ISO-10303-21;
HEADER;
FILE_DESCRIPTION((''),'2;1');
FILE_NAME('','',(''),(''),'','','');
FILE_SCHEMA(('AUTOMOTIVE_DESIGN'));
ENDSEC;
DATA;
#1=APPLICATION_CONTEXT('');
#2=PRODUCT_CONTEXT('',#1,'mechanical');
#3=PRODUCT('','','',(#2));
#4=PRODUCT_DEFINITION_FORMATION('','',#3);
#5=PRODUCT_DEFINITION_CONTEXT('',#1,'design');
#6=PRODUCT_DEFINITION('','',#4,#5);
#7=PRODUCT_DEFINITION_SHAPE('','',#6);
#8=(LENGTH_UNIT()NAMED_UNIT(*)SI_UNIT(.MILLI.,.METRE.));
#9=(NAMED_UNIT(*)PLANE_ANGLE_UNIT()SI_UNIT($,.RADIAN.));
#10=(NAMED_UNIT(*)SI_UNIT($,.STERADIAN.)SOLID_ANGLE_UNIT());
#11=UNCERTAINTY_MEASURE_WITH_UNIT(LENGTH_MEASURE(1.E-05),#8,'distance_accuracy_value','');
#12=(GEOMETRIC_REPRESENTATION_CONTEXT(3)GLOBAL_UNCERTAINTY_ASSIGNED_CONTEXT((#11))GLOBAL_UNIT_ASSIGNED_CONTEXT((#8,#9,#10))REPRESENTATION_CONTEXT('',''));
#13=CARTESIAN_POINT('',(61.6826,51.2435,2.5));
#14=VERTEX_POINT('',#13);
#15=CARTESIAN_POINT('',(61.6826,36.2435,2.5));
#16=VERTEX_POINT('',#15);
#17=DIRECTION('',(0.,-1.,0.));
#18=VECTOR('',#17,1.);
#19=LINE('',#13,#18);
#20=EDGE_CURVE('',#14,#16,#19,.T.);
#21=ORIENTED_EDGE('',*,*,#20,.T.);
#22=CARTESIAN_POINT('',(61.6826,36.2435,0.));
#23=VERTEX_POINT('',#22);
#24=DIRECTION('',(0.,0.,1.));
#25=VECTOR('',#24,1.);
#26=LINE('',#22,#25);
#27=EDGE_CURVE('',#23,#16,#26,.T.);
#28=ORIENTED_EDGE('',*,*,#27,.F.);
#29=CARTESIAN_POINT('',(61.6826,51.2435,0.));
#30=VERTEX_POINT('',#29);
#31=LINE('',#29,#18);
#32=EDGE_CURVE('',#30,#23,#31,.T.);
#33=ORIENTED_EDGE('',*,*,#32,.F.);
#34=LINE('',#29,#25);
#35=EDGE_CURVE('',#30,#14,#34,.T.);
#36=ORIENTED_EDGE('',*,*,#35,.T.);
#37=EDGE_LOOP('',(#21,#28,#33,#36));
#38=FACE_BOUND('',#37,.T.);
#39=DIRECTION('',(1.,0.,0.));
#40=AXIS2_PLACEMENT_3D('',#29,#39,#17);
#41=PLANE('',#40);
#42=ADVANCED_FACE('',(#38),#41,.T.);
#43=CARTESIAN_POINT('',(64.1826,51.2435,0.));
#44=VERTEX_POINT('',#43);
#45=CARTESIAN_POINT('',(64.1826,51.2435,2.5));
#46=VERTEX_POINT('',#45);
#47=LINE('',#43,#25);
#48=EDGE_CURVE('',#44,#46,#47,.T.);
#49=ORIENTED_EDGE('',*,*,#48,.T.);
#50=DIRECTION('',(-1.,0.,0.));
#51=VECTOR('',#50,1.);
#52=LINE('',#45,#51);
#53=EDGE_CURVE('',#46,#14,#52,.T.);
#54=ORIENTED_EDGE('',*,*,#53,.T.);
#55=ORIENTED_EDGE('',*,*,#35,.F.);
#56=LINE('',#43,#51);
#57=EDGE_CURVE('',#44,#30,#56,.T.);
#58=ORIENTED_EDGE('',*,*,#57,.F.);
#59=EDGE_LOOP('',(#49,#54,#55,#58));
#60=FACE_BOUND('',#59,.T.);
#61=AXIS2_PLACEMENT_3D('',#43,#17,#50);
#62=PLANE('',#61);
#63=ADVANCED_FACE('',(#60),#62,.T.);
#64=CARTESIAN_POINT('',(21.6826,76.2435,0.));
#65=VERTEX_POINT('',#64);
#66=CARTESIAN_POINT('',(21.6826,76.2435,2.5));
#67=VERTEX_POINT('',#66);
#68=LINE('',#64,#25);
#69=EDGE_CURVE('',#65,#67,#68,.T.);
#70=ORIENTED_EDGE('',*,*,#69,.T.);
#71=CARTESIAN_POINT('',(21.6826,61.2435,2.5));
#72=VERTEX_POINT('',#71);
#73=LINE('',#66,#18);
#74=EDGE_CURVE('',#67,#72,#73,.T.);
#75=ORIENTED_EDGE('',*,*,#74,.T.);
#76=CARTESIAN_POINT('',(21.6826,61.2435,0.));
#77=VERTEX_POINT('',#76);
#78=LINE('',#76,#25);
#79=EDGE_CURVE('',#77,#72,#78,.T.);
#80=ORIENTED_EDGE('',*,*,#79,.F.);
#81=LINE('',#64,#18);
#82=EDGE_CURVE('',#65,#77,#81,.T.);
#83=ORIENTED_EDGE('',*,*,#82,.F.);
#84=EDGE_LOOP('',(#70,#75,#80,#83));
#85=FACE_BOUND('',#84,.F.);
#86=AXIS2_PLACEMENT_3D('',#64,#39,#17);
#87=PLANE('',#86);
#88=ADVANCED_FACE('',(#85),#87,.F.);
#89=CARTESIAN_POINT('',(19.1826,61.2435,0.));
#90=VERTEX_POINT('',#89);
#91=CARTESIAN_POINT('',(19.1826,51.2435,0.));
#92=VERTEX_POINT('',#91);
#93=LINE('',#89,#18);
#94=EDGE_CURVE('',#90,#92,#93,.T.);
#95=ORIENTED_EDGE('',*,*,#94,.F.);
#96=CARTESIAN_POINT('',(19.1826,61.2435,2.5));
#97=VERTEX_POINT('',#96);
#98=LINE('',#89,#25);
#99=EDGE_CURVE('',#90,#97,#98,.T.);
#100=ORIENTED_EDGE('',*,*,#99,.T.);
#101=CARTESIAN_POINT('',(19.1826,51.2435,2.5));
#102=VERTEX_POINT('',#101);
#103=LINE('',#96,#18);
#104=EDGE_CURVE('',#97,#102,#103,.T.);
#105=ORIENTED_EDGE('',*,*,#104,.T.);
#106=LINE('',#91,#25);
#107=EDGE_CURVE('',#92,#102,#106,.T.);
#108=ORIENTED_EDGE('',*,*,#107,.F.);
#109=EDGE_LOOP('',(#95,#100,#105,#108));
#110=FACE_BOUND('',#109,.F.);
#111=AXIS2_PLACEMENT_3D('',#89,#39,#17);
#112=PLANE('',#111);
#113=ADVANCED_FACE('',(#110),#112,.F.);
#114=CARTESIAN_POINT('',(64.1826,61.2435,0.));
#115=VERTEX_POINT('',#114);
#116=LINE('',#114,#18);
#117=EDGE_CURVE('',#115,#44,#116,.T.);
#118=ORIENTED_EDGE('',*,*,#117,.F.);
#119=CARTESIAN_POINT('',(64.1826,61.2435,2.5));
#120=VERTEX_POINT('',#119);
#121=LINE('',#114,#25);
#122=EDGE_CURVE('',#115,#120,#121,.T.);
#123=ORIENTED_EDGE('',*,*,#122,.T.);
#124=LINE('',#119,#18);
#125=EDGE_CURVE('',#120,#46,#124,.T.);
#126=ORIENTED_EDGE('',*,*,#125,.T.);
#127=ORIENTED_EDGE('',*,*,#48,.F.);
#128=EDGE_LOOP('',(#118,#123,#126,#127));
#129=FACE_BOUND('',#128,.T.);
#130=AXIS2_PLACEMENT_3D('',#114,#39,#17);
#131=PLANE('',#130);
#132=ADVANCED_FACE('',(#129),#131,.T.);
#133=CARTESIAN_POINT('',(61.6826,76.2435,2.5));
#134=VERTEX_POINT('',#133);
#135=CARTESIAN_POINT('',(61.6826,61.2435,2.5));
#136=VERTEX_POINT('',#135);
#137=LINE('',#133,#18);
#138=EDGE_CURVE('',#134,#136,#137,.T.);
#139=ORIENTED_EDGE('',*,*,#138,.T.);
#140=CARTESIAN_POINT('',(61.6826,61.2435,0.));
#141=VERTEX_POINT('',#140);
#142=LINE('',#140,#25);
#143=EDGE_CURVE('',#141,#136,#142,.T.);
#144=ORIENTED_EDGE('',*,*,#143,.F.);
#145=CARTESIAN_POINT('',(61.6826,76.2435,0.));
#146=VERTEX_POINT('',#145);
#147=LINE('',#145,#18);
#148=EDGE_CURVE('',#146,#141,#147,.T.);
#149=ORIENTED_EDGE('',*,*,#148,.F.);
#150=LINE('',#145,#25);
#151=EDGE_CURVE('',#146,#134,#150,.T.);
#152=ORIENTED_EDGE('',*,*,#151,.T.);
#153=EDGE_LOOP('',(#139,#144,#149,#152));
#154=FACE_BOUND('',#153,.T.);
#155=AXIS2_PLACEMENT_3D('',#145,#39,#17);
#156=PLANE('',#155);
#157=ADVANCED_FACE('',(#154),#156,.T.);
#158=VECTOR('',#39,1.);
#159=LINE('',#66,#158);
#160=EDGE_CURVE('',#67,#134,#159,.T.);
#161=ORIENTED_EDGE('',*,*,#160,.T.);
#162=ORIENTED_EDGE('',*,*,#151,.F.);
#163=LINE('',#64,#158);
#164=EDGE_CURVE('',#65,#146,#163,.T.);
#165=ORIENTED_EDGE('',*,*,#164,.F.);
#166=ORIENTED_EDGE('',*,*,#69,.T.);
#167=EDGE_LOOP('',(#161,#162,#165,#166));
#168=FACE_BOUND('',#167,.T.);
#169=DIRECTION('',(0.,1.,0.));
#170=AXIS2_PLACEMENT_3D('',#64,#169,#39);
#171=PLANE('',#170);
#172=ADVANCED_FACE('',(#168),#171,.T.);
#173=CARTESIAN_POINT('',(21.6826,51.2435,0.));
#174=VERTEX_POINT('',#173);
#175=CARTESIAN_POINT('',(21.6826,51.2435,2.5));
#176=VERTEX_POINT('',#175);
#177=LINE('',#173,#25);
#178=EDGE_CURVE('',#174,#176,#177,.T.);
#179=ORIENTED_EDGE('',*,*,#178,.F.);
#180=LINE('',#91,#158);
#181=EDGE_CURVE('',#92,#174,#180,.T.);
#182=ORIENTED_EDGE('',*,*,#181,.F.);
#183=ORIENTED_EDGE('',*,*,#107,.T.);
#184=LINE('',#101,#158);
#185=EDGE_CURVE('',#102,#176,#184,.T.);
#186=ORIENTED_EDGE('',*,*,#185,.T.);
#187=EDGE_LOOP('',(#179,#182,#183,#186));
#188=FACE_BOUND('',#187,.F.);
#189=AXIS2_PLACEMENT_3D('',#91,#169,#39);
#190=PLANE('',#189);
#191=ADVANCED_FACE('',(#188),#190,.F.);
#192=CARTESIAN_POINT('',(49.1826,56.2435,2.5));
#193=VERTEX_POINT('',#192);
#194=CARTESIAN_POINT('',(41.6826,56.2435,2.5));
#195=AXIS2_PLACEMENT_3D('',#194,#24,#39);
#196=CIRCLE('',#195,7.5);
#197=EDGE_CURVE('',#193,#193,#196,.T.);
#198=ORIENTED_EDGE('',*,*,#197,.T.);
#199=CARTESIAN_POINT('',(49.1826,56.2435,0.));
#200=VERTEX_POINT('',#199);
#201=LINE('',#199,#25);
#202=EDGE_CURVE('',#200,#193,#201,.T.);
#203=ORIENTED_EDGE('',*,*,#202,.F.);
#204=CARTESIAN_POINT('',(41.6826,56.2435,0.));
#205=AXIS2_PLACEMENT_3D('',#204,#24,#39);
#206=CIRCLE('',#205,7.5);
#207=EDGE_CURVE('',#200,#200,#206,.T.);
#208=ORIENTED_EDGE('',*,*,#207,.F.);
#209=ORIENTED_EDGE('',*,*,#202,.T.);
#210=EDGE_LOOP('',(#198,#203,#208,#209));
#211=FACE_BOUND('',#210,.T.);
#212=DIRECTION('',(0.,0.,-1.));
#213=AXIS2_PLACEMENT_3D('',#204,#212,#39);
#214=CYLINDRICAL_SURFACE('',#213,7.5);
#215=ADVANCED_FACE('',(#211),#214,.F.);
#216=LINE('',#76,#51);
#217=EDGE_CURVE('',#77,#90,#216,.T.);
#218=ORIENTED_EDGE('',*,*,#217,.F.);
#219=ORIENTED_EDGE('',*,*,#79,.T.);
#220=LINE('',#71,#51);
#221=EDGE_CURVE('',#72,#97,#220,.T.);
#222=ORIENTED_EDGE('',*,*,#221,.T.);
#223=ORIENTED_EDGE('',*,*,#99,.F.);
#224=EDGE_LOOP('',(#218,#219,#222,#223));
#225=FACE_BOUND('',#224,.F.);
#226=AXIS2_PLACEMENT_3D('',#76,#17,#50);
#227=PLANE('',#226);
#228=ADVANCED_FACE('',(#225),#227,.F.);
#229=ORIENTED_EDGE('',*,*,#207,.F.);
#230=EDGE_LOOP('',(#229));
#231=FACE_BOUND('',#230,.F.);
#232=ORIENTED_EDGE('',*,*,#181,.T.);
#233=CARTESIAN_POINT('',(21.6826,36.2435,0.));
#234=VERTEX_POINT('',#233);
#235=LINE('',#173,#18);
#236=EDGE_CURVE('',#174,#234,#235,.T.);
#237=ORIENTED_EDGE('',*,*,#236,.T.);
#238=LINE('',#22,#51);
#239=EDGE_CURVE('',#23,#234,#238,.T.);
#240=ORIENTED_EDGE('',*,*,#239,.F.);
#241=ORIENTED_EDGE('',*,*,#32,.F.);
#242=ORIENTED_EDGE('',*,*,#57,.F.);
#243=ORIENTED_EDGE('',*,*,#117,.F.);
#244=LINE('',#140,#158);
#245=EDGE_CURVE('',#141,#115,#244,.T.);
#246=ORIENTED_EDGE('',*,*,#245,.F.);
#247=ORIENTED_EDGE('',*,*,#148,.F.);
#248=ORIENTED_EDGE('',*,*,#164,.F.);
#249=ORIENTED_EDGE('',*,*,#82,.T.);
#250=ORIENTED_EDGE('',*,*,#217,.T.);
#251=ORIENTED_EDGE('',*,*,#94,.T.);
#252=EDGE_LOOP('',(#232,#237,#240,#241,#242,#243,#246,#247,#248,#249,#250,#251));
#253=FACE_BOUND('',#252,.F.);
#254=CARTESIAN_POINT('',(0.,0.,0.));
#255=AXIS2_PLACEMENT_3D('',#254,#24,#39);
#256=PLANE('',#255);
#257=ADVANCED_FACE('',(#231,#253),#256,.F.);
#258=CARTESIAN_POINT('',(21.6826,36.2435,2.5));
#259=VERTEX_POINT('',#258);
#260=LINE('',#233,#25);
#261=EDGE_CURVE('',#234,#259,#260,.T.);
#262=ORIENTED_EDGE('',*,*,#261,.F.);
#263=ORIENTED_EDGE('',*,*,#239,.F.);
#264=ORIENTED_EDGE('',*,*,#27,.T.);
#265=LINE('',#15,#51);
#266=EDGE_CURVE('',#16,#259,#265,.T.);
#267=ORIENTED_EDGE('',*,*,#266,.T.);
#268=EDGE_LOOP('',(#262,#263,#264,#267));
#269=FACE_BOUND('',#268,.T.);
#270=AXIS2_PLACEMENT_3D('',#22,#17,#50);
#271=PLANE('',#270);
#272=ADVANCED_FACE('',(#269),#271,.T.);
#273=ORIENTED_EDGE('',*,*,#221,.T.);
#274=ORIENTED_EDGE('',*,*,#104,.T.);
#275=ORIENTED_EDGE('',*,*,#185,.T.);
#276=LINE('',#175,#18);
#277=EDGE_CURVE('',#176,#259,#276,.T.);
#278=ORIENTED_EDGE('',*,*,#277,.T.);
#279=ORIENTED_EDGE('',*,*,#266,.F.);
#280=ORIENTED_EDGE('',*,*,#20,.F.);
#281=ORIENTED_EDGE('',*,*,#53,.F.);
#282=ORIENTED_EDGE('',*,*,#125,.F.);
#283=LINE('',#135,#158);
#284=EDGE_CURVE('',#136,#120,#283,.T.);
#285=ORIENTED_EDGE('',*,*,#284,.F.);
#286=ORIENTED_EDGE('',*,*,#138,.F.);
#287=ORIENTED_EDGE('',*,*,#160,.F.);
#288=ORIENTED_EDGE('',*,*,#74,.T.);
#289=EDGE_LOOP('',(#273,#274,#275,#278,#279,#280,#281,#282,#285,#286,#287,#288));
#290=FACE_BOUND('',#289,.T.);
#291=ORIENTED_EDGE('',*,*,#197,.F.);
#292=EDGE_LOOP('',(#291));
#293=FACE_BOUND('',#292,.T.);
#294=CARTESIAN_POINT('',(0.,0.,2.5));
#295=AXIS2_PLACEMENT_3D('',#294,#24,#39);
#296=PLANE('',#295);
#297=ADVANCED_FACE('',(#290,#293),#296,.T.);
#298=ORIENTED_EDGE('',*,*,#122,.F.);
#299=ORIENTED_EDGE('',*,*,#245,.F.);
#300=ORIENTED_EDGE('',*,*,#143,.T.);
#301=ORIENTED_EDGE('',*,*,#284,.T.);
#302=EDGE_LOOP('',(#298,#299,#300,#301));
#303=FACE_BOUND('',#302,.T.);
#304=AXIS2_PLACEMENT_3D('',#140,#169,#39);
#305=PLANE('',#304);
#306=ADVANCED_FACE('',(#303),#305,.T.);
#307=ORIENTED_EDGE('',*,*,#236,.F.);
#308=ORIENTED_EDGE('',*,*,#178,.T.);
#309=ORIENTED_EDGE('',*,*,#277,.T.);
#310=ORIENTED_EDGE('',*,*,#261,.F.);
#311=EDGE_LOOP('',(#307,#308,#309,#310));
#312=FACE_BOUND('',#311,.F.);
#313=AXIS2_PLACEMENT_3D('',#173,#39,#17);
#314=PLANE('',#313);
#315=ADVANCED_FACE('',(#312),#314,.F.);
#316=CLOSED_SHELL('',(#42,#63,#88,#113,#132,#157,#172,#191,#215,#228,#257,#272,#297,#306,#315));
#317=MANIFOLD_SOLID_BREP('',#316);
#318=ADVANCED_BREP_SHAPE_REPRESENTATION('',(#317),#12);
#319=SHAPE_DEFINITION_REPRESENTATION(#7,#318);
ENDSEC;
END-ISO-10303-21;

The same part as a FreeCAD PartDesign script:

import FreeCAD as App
import Part
import Sketcher


def add_polygon(sketch, points):
    """Adds a closed chain of lines whose ends are joined by coincident constraints."""
    first, n = sketch.GeometryCount, len(points)
    for a, b in zip(points, points[1:] + points[:1]):
        sketch.addGeometry(Part.LineSegment(App.Vector(*a, 0), App.Vector(*b, 0)), False)
    for i in range(n):
        sketch.addConstraint(Sketcher.Constraint("Coincident", first + i, 2, first + (i + 1) % n, 1))

doc = App.newDocument("Part")
body = doc.addObject("PartDesign::Body", "Body")

# Sketch on XY plane
sketch1 = body.newObject("Sketcher::SketchObject", "Sketch")
sketch1.AttachmentSupport = (doc.getObject("XY_Plane"), [""])
sketch1.MapMode = "FlatFace"
add_polygon(sketch1, [(61.6826, 76.2435), (21.6826, 76.2435), (21.6826, 61.2435), (19.1826, 61.2435), (19.1826, 51.2435), (21.6826, 51.2435), (21.6826, 36.2435), (61.6826, 36.2435), (61.6826, 51.2435), (64.1826, 51.2435), (64.1826, 61.2435), (61.6826, 61.2435)])  # lines 0-11
sketch1.addGeometry(Part.Circle(App.Vector(41.6826, 56.2435, 0), App.Vector(0, 0, 1), 7.5), False)  # 12
sketch1.addConstraint([
    Sketcher.Constraint("Horizontal", 0),
    Sketcher.Constraint("Vertical", 1),
    Sketcher.Constraint("Horizontal", 2),
    Sketcher.Constraint("Vertical", 3),
    Sketcher.Constraint("Horizontal", 4),
    Sketcher.Constraint("Vertical", 5),
    Sketcher.Constraint("Horizontal", 6),
    Sketcher.Constraint("Vertical", 7),
    Sketcher.Constraint("Horizontal", 8),
    Sketcher.Constraint("Vertical", 9),
    Sketcher.Constraint("Horizontal", 10),
    Sketcher.Constraint("Vertical", 11),
    Sketcher.Constraint("Horizontal", 4, 2, 7, 2),
    Sketcher.Constraint("Horizontal", 2, 2, 9, 2),
    Sketcher.Constraint("Vertical", 1, 2, 4, 2),
    Sketcher.Constraint("Vertical", 7, 2, 10, 2),
    Sketcher.Constraint("Equal", 4, 8),
    Sketcher.Constraint("Equal", 1, 5),
    Sketcher.Constraint("Diameter", 12, 15.0),
    Sketcher.Constraint("DistanceX", 0, 2, 0, 1, 40.0),
    Sketcher.Constraint("DistanceY", 1, 2, 1, 1, 15.0),
    Sketcher.Constraint("DistanceY", 3, 2, 3, 1, 10.0),
    Sketcher.Constraint("DistanceX", 2, 2, 2, 1, 2.5),
    Sketcher.Constraint("DistanceX", 0, 2, 12, 3, 20.0),
    Sketcher.Constraint("DistanceY", 12, 3, 0, 2, 20.0),
    Sketcher.Constraint("DistanceX", -1, 1, 12, 3, 41.6826),
    Sketcher.Constraint("DistanceY", -1, 1, 12, 3, 56.2435),
])
pad1 = body.newObject("PartDesign::Pad", "Pad")
pad1.Profile = sketch1
pad1.Length = 2.5

doc.recompute()
